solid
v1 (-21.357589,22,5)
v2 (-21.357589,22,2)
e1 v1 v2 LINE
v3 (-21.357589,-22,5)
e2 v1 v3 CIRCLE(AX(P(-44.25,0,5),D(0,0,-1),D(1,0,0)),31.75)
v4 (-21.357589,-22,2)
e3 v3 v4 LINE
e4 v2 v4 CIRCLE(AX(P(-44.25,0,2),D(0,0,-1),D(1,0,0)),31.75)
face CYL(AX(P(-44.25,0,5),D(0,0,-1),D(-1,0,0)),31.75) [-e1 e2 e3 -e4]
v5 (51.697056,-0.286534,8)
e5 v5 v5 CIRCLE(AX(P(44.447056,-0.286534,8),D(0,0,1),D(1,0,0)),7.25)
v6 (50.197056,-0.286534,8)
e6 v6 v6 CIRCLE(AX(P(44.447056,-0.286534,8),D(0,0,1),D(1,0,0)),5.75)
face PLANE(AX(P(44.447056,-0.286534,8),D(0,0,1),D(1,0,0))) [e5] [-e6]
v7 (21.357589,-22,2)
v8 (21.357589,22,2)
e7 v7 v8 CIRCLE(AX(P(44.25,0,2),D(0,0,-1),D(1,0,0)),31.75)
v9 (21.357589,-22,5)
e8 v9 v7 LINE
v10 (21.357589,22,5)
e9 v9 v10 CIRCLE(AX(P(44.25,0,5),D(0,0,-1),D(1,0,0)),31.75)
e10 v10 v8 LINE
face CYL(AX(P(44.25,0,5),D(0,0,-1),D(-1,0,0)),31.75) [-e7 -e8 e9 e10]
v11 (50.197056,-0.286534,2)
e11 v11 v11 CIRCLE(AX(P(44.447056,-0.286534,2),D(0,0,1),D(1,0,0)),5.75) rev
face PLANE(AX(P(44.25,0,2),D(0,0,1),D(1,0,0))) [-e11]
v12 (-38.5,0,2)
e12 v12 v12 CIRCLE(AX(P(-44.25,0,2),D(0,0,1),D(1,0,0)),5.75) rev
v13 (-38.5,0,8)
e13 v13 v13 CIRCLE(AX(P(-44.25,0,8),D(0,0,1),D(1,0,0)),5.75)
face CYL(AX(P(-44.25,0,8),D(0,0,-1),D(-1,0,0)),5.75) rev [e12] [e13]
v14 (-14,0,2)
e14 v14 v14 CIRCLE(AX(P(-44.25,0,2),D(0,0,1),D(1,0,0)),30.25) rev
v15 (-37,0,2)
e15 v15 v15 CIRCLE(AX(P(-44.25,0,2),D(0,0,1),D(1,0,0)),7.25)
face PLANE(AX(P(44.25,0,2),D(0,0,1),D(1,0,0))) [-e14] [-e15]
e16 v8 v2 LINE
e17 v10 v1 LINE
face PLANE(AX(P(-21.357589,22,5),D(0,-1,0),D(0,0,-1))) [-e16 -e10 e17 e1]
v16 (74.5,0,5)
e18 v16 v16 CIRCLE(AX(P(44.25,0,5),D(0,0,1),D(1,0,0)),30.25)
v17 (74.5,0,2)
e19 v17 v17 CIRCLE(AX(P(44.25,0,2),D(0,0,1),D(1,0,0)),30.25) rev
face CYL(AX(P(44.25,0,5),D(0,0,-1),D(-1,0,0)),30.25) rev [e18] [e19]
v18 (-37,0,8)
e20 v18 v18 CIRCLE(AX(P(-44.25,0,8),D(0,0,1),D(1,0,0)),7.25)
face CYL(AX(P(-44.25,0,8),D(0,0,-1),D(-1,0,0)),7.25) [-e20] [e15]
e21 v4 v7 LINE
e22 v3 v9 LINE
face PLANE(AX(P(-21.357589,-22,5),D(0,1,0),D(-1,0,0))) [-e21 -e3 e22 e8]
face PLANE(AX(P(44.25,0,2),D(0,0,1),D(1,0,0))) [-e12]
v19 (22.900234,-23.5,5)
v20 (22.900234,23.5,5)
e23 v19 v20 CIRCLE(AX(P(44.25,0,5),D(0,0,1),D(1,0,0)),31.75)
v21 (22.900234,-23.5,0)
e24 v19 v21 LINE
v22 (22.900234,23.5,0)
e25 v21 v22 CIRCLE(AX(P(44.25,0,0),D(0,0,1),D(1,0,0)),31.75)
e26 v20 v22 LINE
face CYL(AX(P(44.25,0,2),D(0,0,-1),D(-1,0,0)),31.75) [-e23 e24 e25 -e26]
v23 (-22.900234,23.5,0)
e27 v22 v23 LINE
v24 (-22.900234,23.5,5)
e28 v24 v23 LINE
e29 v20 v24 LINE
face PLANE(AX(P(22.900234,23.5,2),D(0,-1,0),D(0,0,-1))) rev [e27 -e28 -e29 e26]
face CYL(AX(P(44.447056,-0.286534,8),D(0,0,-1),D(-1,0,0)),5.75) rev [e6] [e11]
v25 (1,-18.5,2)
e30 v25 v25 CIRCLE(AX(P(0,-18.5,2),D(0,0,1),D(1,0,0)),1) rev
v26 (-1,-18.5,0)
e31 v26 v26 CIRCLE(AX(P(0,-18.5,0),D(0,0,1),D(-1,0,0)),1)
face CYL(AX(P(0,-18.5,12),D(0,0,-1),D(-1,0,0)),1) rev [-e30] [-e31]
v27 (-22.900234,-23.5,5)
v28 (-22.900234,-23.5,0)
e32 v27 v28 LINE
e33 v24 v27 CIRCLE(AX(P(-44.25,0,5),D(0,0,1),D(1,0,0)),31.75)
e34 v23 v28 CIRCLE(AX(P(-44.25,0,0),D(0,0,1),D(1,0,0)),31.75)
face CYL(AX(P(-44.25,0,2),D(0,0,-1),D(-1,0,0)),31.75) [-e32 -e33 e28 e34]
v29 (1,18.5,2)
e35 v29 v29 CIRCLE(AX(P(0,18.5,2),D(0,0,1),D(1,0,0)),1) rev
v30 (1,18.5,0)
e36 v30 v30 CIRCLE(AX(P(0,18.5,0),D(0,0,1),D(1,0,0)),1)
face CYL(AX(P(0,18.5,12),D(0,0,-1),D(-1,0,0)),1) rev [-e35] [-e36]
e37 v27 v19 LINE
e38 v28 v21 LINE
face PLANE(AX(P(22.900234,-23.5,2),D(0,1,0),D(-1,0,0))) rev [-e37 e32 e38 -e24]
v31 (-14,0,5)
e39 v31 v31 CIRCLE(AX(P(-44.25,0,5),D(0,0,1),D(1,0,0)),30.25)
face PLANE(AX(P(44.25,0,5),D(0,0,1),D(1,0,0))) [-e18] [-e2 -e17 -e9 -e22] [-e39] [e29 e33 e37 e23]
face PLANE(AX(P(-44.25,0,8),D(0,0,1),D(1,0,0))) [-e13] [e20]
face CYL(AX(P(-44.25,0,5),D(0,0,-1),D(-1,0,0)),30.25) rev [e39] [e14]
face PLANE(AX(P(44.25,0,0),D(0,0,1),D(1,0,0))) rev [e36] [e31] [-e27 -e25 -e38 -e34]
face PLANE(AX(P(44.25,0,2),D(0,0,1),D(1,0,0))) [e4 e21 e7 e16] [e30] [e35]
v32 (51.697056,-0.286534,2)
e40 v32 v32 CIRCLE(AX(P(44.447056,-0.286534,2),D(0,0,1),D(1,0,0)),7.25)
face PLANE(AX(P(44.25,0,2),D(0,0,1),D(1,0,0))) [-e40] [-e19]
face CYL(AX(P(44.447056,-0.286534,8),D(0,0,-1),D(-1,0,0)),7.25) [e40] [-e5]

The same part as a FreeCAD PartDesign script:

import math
import FreeCAD as App
import Part
import Sketcher
from FreeCAD import Vector
Q = App.Units.Quantity

doc = App.newDocument("Part")
body = doc.addObject("PartDesign::Body", "Body")

# Sketch on XY plane
sketch1 = body.newObject("Sketcher::SketchObject", "Sketch")
sketch1.AttachmentSupport = (doc.getObject("XY_Plane"), [""])
sketch1.MapMode = "FlatFace"
sketch1.addGeometry([
    Part.LineSegment(Vector(22.900234, 23.5, 0), Vector(-22.900234, 23.5, 0)),
    Part.ArcOfCircle(Part.Circle(Vector(-44.25, 0, 0), Vector(0, 0, 1), 31.75), math.radians(47.744832), math.radians(312.255168)),
    Part.LineSegment(Vector(-22.900234, -23.5, 0), Vector(22.900234, -23.5, 0)),
    Part.ArcOfCircle(Part.Circle(Vector(44.25, 0, 0), Vector(0, 0, 1), 31.75), math.radians(-132.255168), math.radians(132.255168)),
], False)
sketch1.addConstraint([
    Sketcher.Constraint("Coincident", 0, 2, 1, 1),
    Sketcher.Constraint("Coincident", 1, 2, 2, 1),
    Sketcher.Constraint("Coincident", 2, 2, 3, 1),
    Sketcher.Constraint("Coincident", 3, 2, 0, 1),
    Sketcher.Constraint("Horizontal", 0),
    Sketcher.Constraint("Horizontal", 2),
    Sketcher.Constraint("Equal", 1, 3),
    Sketcher.Constraint("Symmetric", 1, 3, 3, 3, -1, 1),
    Sketcher.Constraint("Symmetric", 0, 2, 1, 2, -1),
    Sketcher.Constraint("Radius", 1, Q("31.75 mm")),
    Sketcher.Constraint("DistanceY", 1, 2, 0, 2, Q("47 mm")),
    Sketcher.Constraint("DistanceX", 1, 3, 3, 3, Q("88.5 mm")),
])
pad1 = body.newObject("PartDesign::Pad", "Pad")
pad1.Profile = sketch1
pad1.Length = 2

# Sketch on XY plane
sketch2 = body.newObject("Sketcher::SketchObject", "Sketch001")
sketch2.AttachmentSupport = (doc.getObject("XY_Plane"), [""])
sketch2.MapMode = "FlatFace"
sketch2.AttachmentOffset = App.Placement(Vector(0, 0, 2), App.Rotation())
sketch2.addGeometry([
    Part.LineSegment(Vector(22.900234, 23.5, 0), Vector(-22.900234, 23.5, 0)),  # 0
    Part.ArcOfCircle(Part.Circle(Vector(-44.25, 0, 0), Vector(0, 0, 1), 31.75), math.radians(47.744832), math.radians(312.255168)),  # 1
    Part.LineSegment(Vector(-22.900234, -23.5, 0), Vector(22.900234, -23.5, 0)),  # 2
    Part.ArcOfCircle(Part.Circle(Vector(44.25, 0, 0), Vector(0, 0, 1), 31.75), math.radians(-132.255168), math.radians(132.255168)),  # 3
    Part.Circle(Vector(-44.25, 0, 0), Vector(0, 0, 1), 30.25),  # 4
    Part.ArcOfCircle(Part.Circle(Vector(-44.25, 0, 0), Vector(0, 0, 1), 31.75), math.radians(-43.861173), math.radians(43.861173)),  # 5
    Part.LineSegment(Vector(-21.357589, 22, 0), Vector(21.357589, 22, 0)),  # 6
    Part.ArcOfCircle(Part.Circle(Vector(44.25, 0, 0), Vector(0, 0, 1), 31.75), math.radians(136.138827), math.radians(223.861173)),  # 7
    Part.LineSegment(Vector(21.357589, -22, 0), Vector(-21.357589, -22, 0)),  # 8
    Part.Circle(Vector(44.25, 0, 0), Vector(0, 0, 1), 30.25),  # 9
], False)
sketch2.addConstraint([
    Sketcher.Constraint("Coincident", 0, 2, 1, 1),
    Sketcher.Constraint("Coincident", 1, 2, 2, 1),
    Sketcher.Constraint("Coincident", 2, 2, 3, 1),
    Sketcher.Constraint("Coincident", 3, 2, 0, 1),
    Sketcher.Constraint("Coincident", 5, 2, 6, 1),
    Sketcher.Constraint("Coincident", 6, 2, 7, 1),
    Sketcher.Constraint("Coincident", 7, 2, 8, 1),
    Sketcher.Constraint("Coincident", 8, 2, 5, 1),
    Sketcher.Constraint("Horizontal", 0),
    Sketcher.Constraint("Horizontal", 2),
    Sketcher.Constraint("Horizontal", 6),
    Sketcher.Constraint("Horizontal", 8),
    Sketcher.Constraint("Coincident", 4, 3, 1, 3),
    Sketcher.Constraint("Coincident", 5, 3, 1, 3),
    Sketcher.Constraint("Coincident", 7, 3, 3, 3),
    Sketcher.Constraint("Coincident", 9, 3, 3, 3),
    Sketcher.Constraint("Equal", 1, 3),
    Sketcher.Constraint("Equal", 3, 5),
    Sketcher.Constraint("Equal", 5, 7),
    Sketcher.Constraint("Equal", 4, 9),
    Sketcher.Constraint("Symmetric", 1, 3, 3, 3, -1, 1),
    Sketcher.Constraint("Symmetric", 0, 2, 1, 2, -1),
    Sketcher.Constraint("Vertical", 6, 2, 7, 2),
    Sketcher.Constraint("Diameter", 4, Q("60.5 mm")),
    Sketcher.Constraint("Radius", 1, Q("31.75 mm")),
    Sketcher.Constraint("DistanceY", -1, 1, 5, 2, Q("22 mm")),
    Sketcher.Constraint("DistanceY", 1, 2, 0, 2, Q("47 mm")),
    Sketcher.Constraint("DistanceX", 1, 3, 3, 3, Q("88.5 mm")),
])
pad2 = body.newObject("PartDesign::Pad", "Pad001")
pad2.Profile = sketch2
pad2.Length = 3

# Sketch on XY plane
sketch3 = body.newObject("Sketcher::SketchObject", "Sketch002")
sketch3.AttachmentSupport = (doc.getObject("XY_Plane"), [""])
sketch3.MapMode = "FlatFace"
sketch3.AttachmentOffset = App.Placement(Vector(0, 0, 2), App.Rotation())
sketch3.addGeometry([
    Part.Circle(Vector(-44.25, 0, 0), Vector(0, 0, 1), 7.25),
    Part.Circle(Vector(-44.25, 0, 0), Vector(0, 0, 1), 5.75),
    Part.Circle(Vector(44.447056, -0.286534, 0), Vector(0, 0, 1), 7.25),
    Part.Circle(Vector(44.447056, -0.286534, 0), Vector(0, 0, 1), 5.75),
], False)
sketch3.addConstraint([
    Sketcher.Constraint("Coincident", 1, 3, 0, 3),
    Sketcher.Constraint("Coincident", 3, 3, 2, 3),
    Sketcher.Constraint("Equal", 0, 2),
    Sketcher.Constraint("Equal", 1, 3),
    Sketcher.Constraint("PointOnObject", 0, 3, -1),
    Sketcher.Constraint("Diameter", 0, Q("14.5 mm")),
    Sketcher.Constraint("Diameter", 1, Q("11.5 mm")),
    Sketcher.Constraint("DistanceX", 0, 3, -1, 1, Q("44.25 mm")),
    Sketcher.Constraint("DistanceX", -1, 1, 2, 3, Q("44.447056 mm")),
    Sketcher.Constraint("DistanceY", 2, 3, -1, 1, Q("0.286534 mm")),
])
pad3 = body.newObject("PartDesign::Pad", "Pad002")
pad3.Profile = sketch3
pad3.Length = 6

# Sketch on XY plane
sketch4 = body.newObject("Sketcher::SketchObject", "Sketch003")
sketch4.AttachmentSupport = (doc.getObject("XY_Plane"), [""])
sketch4.MapMode = "FlatFace"
sketch4.AttachmentOffset = App.Placement(Vector(0, 0, 2), App.Rotation())
sketch4.addGeometry([
    Part.Circle(Vector(0, 18.5, 0), Vector(0, 0, 1), 1),
    Part.Circle(Vector(0, -18.5, 0), Vector(0, 0, 1), 1),
], False)
sketch4.addConstraint([
    Sketcher.Constraint("Equal", 0, 1),
    Sketcher.Constraint("Symmetric", 0, 3, 1, 3, -1, 1),
    Sketcher.Constraint("PointOnObject", 0, 3, -2),
    Sketcher.Constraint("Diameter", 0, Q("2 mm")),
    Sketcher.Constraint("DistanceY", 1, 3, 0, 3, Q("37 mm")),
])
pocket1 = body.newObject("PartDesign::Pocket", "Pocket")
pocket1.Profile = sketch4
pocket1.Type = "ThroughAll"
pocket1.Midplane = True

doc.recompute()
